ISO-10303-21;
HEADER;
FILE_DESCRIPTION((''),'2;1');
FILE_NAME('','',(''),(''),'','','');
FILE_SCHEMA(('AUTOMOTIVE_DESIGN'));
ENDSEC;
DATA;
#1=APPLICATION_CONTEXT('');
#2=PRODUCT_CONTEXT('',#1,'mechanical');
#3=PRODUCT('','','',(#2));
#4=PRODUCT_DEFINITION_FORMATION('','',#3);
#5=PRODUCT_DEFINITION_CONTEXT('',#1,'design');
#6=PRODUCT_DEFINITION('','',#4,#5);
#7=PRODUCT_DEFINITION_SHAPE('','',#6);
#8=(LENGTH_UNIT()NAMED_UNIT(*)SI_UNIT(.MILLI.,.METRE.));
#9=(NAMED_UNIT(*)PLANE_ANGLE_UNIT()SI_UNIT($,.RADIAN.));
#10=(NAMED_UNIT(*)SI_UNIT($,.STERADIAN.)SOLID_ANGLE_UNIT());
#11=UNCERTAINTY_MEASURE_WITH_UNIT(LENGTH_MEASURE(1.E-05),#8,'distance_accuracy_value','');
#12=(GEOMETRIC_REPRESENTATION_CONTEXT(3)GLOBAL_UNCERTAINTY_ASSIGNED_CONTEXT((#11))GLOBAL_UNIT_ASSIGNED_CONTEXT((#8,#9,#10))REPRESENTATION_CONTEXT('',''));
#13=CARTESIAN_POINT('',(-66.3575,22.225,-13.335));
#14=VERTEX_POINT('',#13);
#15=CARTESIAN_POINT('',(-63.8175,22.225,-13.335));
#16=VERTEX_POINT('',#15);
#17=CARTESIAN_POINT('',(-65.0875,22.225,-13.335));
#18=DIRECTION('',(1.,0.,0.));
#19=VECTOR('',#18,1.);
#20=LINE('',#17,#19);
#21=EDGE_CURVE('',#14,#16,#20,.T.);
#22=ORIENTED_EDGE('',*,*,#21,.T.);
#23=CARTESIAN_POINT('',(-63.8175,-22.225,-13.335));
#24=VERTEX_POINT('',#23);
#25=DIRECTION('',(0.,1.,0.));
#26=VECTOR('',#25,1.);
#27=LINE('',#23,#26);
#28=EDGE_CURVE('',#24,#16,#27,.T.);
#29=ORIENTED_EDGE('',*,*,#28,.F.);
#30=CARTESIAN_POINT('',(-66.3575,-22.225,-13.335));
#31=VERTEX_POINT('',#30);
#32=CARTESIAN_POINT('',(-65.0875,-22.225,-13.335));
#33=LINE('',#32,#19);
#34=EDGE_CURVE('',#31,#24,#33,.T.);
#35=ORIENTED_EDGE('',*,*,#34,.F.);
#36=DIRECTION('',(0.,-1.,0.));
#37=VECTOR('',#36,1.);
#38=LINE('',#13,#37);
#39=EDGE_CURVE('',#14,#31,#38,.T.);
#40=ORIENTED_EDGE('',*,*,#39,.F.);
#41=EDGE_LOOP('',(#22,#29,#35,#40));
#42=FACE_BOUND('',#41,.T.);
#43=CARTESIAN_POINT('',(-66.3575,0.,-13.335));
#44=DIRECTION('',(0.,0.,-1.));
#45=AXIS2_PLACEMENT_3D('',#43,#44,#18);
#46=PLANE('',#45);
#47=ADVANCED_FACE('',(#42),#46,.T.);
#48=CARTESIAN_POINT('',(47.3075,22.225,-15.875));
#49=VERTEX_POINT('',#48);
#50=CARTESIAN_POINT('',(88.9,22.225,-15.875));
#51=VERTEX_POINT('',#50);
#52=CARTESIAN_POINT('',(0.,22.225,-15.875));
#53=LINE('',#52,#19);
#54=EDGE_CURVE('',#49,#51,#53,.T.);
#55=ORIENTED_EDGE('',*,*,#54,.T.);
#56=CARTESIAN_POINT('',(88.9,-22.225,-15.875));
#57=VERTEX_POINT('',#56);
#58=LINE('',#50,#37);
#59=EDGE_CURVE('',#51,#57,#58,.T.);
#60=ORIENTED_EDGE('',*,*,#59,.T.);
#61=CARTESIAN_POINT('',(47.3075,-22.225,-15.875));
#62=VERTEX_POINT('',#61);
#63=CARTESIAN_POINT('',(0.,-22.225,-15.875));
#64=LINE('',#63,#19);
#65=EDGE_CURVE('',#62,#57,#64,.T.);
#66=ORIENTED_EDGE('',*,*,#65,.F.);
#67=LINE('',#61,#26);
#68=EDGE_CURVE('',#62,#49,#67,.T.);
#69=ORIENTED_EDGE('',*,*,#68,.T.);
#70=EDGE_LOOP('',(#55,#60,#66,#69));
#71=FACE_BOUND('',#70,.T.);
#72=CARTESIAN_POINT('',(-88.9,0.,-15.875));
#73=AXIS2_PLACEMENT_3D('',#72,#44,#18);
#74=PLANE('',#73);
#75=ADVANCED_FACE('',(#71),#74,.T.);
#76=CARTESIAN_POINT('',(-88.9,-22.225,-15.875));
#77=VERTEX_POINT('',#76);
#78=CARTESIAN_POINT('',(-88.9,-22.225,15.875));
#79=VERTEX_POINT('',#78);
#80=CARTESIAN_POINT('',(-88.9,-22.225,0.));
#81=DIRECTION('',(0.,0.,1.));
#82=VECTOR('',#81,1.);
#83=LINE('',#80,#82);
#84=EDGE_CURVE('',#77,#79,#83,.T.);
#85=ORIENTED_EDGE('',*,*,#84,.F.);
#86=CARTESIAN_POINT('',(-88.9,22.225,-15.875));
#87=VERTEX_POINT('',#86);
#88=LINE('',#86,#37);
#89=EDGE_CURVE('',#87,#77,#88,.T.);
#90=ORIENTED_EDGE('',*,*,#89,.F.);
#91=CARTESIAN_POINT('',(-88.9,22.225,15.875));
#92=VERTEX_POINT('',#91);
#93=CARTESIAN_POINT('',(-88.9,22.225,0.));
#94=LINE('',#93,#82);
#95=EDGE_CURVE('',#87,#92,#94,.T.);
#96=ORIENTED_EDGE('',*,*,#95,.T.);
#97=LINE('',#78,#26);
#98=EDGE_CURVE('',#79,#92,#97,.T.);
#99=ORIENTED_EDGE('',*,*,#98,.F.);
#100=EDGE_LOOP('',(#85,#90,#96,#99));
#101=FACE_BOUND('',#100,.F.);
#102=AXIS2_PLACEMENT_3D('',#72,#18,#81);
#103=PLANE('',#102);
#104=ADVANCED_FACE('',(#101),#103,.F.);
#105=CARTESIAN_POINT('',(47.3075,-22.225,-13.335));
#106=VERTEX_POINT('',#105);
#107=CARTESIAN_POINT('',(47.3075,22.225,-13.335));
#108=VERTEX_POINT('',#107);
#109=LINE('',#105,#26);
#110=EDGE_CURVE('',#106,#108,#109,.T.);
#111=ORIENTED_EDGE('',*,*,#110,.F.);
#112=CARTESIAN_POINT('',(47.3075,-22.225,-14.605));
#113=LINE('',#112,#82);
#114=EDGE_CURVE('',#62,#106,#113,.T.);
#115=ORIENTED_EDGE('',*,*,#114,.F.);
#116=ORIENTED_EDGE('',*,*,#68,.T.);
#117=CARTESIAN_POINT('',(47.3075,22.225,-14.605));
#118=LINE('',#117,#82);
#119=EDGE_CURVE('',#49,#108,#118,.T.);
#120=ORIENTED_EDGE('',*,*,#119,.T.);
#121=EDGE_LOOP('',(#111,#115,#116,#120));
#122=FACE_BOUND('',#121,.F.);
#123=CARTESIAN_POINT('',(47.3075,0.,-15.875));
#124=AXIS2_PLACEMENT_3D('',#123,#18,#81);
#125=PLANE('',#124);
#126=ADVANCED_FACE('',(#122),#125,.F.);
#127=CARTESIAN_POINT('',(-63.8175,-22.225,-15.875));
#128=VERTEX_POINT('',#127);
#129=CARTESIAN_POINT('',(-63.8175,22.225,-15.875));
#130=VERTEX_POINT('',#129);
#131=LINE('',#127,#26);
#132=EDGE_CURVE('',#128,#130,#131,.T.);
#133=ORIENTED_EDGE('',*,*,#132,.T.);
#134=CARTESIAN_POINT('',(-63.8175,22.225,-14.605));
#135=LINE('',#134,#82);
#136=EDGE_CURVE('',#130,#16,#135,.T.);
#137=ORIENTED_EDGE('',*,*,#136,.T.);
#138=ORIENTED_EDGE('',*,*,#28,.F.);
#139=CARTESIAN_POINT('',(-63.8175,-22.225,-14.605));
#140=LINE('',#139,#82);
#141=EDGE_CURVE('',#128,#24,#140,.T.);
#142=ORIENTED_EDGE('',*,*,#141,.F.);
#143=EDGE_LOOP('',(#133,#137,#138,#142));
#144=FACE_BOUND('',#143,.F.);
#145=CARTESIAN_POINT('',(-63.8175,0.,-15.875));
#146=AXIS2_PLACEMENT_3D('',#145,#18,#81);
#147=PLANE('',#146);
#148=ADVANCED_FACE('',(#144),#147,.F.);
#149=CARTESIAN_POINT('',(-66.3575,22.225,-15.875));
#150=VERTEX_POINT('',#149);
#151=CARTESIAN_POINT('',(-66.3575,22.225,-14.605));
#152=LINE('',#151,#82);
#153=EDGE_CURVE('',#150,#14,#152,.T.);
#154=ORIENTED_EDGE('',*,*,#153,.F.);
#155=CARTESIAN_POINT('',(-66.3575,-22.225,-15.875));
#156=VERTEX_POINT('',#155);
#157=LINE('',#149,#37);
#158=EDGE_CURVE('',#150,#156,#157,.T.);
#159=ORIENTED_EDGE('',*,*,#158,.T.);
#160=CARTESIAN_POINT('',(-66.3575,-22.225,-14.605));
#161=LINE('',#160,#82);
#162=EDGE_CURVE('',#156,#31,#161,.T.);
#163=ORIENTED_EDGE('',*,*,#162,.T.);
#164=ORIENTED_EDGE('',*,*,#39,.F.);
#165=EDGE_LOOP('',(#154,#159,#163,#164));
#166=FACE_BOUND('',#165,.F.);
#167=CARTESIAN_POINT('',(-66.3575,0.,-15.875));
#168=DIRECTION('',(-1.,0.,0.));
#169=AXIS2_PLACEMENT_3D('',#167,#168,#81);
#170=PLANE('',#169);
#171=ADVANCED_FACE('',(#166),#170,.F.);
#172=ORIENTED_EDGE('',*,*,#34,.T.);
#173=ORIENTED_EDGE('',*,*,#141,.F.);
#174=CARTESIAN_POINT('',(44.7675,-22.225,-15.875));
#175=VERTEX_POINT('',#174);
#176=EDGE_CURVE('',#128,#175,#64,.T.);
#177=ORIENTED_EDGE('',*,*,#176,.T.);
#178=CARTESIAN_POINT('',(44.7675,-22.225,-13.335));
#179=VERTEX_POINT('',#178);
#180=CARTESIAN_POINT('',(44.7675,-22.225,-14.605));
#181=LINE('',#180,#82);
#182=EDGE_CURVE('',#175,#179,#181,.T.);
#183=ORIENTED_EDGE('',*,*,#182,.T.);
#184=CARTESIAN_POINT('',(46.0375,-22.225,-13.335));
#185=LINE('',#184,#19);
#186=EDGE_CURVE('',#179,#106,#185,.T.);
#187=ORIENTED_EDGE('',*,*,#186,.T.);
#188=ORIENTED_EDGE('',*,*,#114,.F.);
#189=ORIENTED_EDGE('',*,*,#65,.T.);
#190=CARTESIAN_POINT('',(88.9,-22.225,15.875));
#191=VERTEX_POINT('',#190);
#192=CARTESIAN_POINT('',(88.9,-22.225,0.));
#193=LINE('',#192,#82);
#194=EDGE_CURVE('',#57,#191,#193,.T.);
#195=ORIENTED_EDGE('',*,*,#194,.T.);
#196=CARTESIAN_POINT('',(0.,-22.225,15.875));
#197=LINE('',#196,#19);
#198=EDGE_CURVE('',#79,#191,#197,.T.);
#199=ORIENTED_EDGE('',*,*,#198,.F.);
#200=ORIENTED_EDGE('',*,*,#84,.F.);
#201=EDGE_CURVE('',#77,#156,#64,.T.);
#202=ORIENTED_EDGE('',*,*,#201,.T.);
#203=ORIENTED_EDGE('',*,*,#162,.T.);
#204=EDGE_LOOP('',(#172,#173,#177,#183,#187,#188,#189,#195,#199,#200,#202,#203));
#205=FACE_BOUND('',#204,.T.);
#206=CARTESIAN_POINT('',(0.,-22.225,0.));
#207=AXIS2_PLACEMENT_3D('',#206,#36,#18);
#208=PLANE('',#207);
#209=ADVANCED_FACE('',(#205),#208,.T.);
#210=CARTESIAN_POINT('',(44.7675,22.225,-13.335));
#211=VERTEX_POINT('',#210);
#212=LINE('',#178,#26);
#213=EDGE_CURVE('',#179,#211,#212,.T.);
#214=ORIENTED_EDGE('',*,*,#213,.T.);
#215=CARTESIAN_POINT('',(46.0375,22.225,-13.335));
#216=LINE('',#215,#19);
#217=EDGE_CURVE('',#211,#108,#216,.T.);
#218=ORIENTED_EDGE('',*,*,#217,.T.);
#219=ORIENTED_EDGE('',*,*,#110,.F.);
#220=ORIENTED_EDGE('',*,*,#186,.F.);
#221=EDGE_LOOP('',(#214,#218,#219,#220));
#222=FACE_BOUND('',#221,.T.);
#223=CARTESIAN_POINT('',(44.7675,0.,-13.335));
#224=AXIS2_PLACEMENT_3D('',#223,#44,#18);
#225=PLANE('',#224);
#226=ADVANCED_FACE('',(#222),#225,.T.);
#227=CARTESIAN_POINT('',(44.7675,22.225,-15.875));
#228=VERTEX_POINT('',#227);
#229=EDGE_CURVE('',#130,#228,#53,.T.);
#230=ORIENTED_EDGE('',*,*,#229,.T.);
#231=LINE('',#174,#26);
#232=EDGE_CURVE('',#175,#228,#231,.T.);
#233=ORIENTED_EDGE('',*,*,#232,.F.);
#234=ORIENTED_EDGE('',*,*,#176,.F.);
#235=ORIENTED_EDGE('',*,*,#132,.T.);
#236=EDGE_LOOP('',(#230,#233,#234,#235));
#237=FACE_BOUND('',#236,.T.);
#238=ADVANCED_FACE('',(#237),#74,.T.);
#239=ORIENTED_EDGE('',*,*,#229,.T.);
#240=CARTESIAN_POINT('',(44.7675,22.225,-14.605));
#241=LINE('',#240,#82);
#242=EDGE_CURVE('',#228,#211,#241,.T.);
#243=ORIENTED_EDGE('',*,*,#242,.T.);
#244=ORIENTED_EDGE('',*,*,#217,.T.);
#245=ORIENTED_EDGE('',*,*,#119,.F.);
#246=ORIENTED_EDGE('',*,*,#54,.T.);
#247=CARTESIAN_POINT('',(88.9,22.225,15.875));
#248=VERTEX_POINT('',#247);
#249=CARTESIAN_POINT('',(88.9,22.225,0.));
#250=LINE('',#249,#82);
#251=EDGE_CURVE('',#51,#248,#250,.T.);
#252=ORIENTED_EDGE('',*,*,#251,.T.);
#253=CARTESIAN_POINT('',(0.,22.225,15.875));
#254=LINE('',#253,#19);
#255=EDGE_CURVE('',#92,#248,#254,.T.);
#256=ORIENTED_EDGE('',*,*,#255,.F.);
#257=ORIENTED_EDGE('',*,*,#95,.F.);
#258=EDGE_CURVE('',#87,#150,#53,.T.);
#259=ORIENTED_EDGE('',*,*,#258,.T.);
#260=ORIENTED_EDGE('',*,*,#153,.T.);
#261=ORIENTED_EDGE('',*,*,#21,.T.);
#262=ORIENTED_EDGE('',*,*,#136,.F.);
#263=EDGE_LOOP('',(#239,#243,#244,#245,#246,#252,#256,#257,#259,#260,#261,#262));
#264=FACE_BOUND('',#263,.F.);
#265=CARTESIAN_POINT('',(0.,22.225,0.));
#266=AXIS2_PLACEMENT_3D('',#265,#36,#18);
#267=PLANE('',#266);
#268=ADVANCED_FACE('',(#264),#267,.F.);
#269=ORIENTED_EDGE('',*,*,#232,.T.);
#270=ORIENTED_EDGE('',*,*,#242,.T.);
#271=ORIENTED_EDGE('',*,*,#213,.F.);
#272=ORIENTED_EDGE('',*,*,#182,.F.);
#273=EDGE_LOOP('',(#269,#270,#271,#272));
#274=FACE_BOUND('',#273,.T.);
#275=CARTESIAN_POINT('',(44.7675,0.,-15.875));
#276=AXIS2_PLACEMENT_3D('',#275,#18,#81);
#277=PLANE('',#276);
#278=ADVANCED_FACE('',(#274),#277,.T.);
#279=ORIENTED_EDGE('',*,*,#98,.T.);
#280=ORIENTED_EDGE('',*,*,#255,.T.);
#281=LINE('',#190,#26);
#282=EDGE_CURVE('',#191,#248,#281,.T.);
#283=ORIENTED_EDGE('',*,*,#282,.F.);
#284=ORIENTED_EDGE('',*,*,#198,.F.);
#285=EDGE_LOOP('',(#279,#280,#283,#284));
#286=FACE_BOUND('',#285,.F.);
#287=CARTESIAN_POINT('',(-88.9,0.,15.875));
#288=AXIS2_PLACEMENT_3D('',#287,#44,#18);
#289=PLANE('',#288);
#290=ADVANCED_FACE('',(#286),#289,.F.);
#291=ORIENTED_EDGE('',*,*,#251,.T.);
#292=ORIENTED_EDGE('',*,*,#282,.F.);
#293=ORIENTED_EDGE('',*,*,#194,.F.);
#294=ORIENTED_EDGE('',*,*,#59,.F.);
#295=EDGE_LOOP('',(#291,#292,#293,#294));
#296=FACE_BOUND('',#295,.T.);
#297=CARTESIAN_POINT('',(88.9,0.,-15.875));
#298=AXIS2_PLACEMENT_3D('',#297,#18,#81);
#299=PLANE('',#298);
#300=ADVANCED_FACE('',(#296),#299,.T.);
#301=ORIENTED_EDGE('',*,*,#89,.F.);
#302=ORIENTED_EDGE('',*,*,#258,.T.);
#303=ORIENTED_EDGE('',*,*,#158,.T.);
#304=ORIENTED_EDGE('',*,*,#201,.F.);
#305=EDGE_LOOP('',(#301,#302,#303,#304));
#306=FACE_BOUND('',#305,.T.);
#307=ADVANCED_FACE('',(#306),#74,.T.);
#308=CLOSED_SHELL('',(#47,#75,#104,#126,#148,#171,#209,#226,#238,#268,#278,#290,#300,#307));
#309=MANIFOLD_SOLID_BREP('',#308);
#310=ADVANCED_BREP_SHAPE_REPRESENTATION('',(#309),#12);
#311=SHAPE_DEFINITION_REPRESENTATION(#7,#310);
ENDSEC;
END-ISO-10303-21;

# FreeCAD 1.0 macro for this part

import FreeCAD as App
import Part
import Sketcher
from FreeCAD import Vector
Q = App.Units.Quantity

doc = App.newDocument("Part")
body = doc.addObject("PartDesign::Body", "Body")

# Sketch on XZ plane
sketch1 = body.newObject("Sketcher::SketchObject", "Sketch")
sketch1.AttachmentSupport = (doc.getObject("XZ_Plane"), [""])
sketch1.MapMode = "FlatFace"
sketch1.addGeometry(Part.LineSegment(Vector(-89, 16, 0), Vector(-89, -16, 0)), False)
sketch1.addGeometry(Part.LineSegment(Vector(-89, -16, 0), Vector(89, -16, 0)), False)
sketch1.addGeometry(Part.LineSegment(Vector(89, -16, 0), Vector(89, 16, 0)), False)
sketch1.addGeometry(Part.LineSegment(Vector(89, 16, 0), Vector(-89, 16, 0)), False)
sketch1.addConstraint(Sketcher.Constraint("Coincident", 0, 2, 1, 1))
sketch1.addConstraint(Sketcher.Constraint("Coincident", 1, 2, 2, 1))
sketch1.addConstraint(Sketcher.Constraint("Coincident", 2, 2, 3, 1))
sketch1.addConstraint(Sketcher.Constraint("Coincident", 3, 2, 0, 1))
sketch1.addConstraint(Sketcher.Constraint("Vertical", 0))
sketch1.addConstraint(Sketcher.Constraint("Horizontal", 1))
sketch1.addConstraint(Sketcher.Constraint("Vertical", 2))
sketch1.addConstraint(Sketcher.Constraint("Horizontal", 3))
sketch1.addConstraint(Sketcher.Constraint("Symmetric", 0, 2, 2, 2, -1, 1))
sketch1.addConstraint(Sketcher.Constraint("DistanceX", 1, 1, 1, 2, Q("7 in")))
sketch1.addConstraint(Sketcher.Constraint("DistanceY", 0, 2, 0, 1, Q("1.25 in")))
pad1 = body.newObject("PartDesign::Pad", "Pad")
pad1.Profile = sketch1
pad1.Length = Q("1.75 in")
pad1.Midplane = True

# Sketch on XZ plane
sketch2 = body.newObject("Sketcher::SketchObject", "Sketch001")
sketch2.AttachmentSupport = (doc.getObject("XZ_Plane"), [""])
sketch2.MapMode = "FlatFace"
sketch2.addGeometry(Part.LineSegment(Vector(-66.4, -13.3, 0), Vector(-66.4, -15.9, 0)), False)
sketch2.addGeometry(Part.LineSegment(Vector(-66.4, -15.9, 0), Vector(-63.8, -15.9, 0)), False)
sketch2.addGeometry(Part.LineSegment(Vector(-63.8, -15.9, 0), Vector(-63.8, -13.3, 0)), False)
sketch2.addGeometry(Part.LineSegment(Vector(-63.8, -13.3, 0), Vector(-66.4, -13.3, 0)), False)
sketch2.addGeometry(Part.LineSegment(Vector(44.8, -13.3, 0), Vector(44.8, -15.9, 0)), False)
sketch2.addGeometry(Part.LineSegment(Vector(44.8, -15.9, 0), Vector(47.3, -15.9, 0)), False)
sketch2.addGeometry(Part.LineSegment(Vector(47.3, -15.9, 0), Vector(47.3, -13.3, 0)), False)
sketch2.addGeometry(Part.LineSegment(Vector(47.3, -13.3, 0), Vector(44.8, -13.3, 0)), False)
sketch2.addConstraint(Sketcher.Constraint("Coincident", 0, 2, 1, 1))
sketch2.addConstraint(Sketcher.Constraint("Coincident", 1, 2, 2, 1))
sketch2.addConstraint(Sketcher.Constraint("Coincident", 2, 2, 3, 1))
sketch2.addConstraint(Sketcher.Constraint("Coincident", 3, 2, 0, 1))
sketch2.addConstraint(Sketcher.Constraint("Coincident", 4, 2, 5, 1))
sketch2.addConstraint(Sketcher.Constraint("Coincident", 5, 2, 6, 1))
sketch2.addConstraint(Sketcher.Constraint("Coincident", 6, 2, 7, 1))
sketch2.addConstraint(Sketcher.Constraint("Coincident", 7, 2, 4, 1))
sketch2.addConstraint(Sketcher.Constraint("Vertical", 0))
sketch2.addConstraint(Sketcher.Constraint("Horizontal", 1))
sketch2.addConstraint(Sketcher.Constraint("Vertical", 2))
sketch2.addConstraint(Sketcher.Constraint("Horizontal", 3))
sketch2.addConstraint(Sketcher.Constraint("Vertical", 4))
sketch2.addConstraint(Sketcher.Constraint("Horizontal", 5))
sketch2.addConstraint(Sketcher.Constraint("Vertical", 6))
sketch2.addConstraint(Sketcher.Constraint("Horizontal", 7))
sketch2.addConstraint(Sketcher.Constraint("Horizontal", 1, 2, 4, 2))
sketch2.addConstraint(Sketcher.Constraint("Horizontal", 3, 2, 6, 2))
sketch2.addConstraint(Sketcher.Constraint("Equal", 3, 5))
sketch2.addConstraint(Sketcher.Constraint("Equal", 7, 0))
sketch2.addConstraint(Sketcher.Constraint("DistanceX", 1, 1, 1, 2, Q("0.1 in")))
sketch2.addConstraint(Sketcher.Constraint("DistanceY", 0, 2, -1, 1, Q("0.625 in")))
sketch2.addConstraint(Sketcher.Constraint("DistanceX", 1, 2, 4, 2, Q("4.275 in")))
sketch2.addConstraint(Sketcher.Constraint("DistanceX", 0, 2, -1, 1, Q("2.6125 in")))
pocket1 = body.newObject("PartDesign::Pocket", "Pocket")
pocket1.Profile = sketch2
pocket1.Type = "ThroughAll"
pocket1.Midplane = True

doc.recompute()
